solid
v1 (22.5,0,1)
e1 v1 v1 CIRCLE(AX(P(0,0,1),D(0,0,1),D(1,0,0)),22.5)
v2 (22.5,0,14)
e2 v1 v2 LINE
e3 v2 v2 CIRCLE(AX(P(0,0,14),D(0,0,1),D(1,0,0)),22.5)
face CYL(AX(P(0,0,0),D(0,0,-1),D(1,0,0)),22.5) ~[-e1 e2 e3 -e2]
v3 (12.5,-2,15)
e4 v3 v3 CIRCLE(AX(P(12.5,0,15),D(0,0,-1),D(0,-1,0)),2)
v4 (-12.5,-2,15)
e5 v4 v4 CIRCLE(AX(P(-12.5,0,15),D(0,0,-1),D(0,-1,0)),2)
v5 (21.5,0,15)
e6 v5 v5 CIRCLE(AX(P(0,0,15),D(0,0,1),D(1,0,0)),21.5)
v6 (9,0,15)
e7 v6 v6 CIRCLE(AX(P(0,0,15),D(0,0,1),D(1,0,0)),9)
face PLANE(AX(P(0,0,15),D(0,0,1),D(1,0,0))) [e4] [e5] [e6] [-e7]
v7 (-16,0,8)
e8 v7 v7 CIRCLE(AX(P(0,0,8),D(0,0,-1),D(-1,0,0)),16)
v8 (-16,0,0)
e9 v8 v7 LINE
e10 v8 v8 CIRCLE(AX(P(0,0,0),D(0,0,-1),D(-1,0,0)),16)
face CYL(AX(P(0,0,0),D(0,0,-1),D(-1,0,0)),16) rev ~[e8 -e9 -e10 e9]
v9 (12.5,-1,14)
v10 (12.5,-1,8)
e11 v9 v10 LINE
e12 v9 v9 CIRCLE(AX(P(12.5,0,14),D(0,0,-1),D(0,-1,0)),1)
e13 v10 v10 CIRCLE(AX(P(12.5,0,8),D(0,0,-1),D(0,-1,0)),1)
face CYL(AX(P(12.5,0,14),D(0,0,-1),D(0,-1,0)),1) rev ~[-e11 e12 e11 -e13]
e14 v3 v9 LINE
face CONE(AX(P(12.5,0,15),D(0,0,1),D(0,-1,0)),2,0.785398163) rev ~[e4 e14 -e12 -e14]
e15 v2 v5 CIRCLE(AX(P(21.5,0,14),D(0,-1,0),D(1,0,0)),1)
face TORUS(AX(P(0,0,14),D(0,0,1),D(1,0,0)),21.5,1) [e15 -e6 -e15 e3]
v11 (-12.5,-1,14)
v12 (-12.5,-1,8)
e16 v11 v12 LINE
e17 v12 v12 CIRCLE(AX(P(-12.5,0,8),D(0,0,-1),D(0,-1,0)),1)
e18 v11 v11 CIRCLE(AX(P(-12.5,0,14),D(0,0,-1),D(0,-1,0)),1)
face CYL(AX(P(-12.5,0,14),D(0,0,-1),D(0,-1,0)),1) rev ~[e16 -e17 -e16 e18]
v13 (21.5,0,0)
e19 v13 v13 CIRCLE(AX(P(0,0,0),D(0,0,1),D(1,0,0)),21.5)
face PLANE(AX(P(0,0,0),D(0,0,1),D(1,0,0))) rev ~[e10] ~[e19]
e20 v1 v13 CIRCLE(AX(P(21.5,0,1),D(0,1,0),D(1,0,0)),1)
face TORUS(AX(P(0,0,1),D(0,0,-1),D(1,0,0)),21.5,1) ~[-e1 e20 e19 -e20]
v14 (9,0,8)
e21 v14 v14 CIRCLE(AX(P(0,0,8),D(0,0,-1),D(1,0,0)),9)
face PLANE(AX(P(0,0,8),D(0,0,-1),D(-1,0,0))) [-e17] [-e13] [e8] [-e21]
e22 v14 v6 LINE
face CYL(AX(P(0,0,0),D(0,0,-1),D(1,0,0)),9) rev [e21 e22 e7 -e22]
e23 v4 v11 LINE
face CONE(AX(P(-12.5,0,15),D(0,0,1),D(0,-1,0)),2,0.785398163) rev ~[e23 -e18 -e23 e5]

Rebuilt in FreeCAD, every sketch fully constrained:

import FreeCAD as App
import Part
import Sketcher

V = App.Vector


def edges_at(feature, points):
    """Names of the edges that pass closest to the given points."""
    edges = feature.Shape.Edges
    near = lambda p: min(range(len(edges)), key=lambda i: edges[i].distToShape(Part.Vertex(*p))[0])
    return sorted({f"Edge{near(p) + 1}" for p in points})

doc = App.newDocument("Part")
params = doc.addObject("Spreadsheet::Sheet", "Params")
for row, (alias, value) in enumerate([
    ("sketch1_diameter", "45 mm"),
    ("sketch1_diameter2", "18 mm"),
    ("pad1_length", "15 mm"),
    ("sketch2_diameter", "32 mm"),
    ("sketch2_diameter2", "18 mm"),
    ("pocket1_length", "8 mm"),
    ("sketch3_diameter", "2 mm"),
    ("hole_diameter", "2 mm"),
    ("hole_csink_diameter", "4 mm"),
    ("fillet_radius", "1 mm"),
], start=1):
    params.set(f"A{row}", alias)
    params.set(f"B{row}", "=" + value)
    params.setAlias(f"B{row}", alias)

body = doc.addObject("PartDesign::Body", "Body")

sketch1 = body.newObject("Sketcher::SketchObject", "Sketch")
sketch1.AttachmentSupport = (doc.getObject("XY_Plane"), [""])
sketch1.MapMode = "FlatFace"
sketch1.addGeometry([
    Part.Circle(V(0, 0, 0), V(0, 0, 1), 22),
    Part.Circle(V(0, 0, 0), V(0, 0, 1), 9),
], False)
sketch1.addConstraint([
    Sketcher.Constraint("Coincident", 0, 3, -1, 1),
    Sketcher.Constraint("Coincident", 1, 3, -1, 1),
    Sketcher.Constraint("Diameter", 0, 45.0),
    Sketcher.Constraint("Diameter", 1, 18.0),
])
sketch1.setExpression("Constraints[2]", "Params.sketch1_diameter")
sketch1.setExpression("Constraints[3]", "Params.sketch1_diameter2")
pad1 = body.newObject("PartDesign::Pad", "Pad")
pad1.Profile = sketch1
pad1.setExpression("Length", "Params.pad1_length")

sketch2 = body.newObject("Sketcher::SketchObject", "Sketch001")
sketch2.AttachmentSupport = (doc.getObject("XY_Plane"), [""])
sketch2.MapMode = "FlatFace"
sketch2.addGeometry([
    Part.Circle(V(0, 0, 0), V(0, 0, 1), 16),
    Part.Circle(V(0, 0, 0), V(0, 0, 1), 9),
], False)
sketch2.addConstraint([
    Sketcher.Constraint("Coincident", 0, 3, -1, 1),
    Sketcher.Constraint("Coincident", 1, 3, -1, 1),
    Sketcher.Constraint("Diameter", 0, 32.0),
    Sketcher.Constraint("Diameter", 1, 18.0),
])
sketch2.setExpression("Constraints[2]", "Params.sketch2_diameter")
sketch2.setExpression("Constraints[3]", "Params.sketch2_diameter2")
pocket1 = body.newObject("PartDesign::Pocket", "Pocket")
pocket1.Profile = sketch2
pocket1.setExpression("Length", "Params.pocket1_length")
pocket1.Reversed = True

sketch3 = body.newObject("Sketcher::SketchObject", "Sketch002")
sketch3.AttachmentSupport = (doc.getObject("XY_Plane"), [""])
sketch3.MapMode = "FlatFace"
sketch3.AttachmentOffset = App.Placement(V(0, 0, 15), App.Rotation())
sketch3.addGeometry([
    Part.Circle(V(-12.5, 0, 0), V(0, 0, 1), 1),
    Part.Circle(V(12.5, 0, 0), V(0, 0, 1), 1),
], False)
sketch3.addConstraint([
    Sketcher.Constraint("Equal", 0, 1),
    Sketcher.Constraint("Symmetric", 0, 3, 1, 3, -1, 1),
    Sketcher.Constraint("PointOnObject", 0, 3, -1),
    Sketcher.Constraint("Diameter", 0, 2.0),
    Sketcher.Constraint("DistanceX", 0, 3, 1, 3, 25.0),
])
sketch3.setExpression("Constraints[3]", "Params.sketch3_diameter")
doc.recompute()
hole = body.newObject("PartDesign::Hole", "Hole")
hole.Profile = sketch3
hole.ThreadType = "None"
hole.setExpression("Diameter", "Params.hole_diameter")
hole.DepthType = "ThroughAll"
hole.HoleCutType = "Countersink"
hole.setExpression("HoleCutDiameter", "Params.hole_csink_diameter")
hole.HoleCutCountersinkAngle = 90
doc.recompute()

fillet = body.newObject("PartDesign::Fillet", "Fillet")
fillet.Base = (hole, edges_at(hole, [(-22.5, 0, 15), (-22.5, 0, 0)]))
fillet.setExpression("Radius", "Params.fillet_radius")

doc.recompute()
